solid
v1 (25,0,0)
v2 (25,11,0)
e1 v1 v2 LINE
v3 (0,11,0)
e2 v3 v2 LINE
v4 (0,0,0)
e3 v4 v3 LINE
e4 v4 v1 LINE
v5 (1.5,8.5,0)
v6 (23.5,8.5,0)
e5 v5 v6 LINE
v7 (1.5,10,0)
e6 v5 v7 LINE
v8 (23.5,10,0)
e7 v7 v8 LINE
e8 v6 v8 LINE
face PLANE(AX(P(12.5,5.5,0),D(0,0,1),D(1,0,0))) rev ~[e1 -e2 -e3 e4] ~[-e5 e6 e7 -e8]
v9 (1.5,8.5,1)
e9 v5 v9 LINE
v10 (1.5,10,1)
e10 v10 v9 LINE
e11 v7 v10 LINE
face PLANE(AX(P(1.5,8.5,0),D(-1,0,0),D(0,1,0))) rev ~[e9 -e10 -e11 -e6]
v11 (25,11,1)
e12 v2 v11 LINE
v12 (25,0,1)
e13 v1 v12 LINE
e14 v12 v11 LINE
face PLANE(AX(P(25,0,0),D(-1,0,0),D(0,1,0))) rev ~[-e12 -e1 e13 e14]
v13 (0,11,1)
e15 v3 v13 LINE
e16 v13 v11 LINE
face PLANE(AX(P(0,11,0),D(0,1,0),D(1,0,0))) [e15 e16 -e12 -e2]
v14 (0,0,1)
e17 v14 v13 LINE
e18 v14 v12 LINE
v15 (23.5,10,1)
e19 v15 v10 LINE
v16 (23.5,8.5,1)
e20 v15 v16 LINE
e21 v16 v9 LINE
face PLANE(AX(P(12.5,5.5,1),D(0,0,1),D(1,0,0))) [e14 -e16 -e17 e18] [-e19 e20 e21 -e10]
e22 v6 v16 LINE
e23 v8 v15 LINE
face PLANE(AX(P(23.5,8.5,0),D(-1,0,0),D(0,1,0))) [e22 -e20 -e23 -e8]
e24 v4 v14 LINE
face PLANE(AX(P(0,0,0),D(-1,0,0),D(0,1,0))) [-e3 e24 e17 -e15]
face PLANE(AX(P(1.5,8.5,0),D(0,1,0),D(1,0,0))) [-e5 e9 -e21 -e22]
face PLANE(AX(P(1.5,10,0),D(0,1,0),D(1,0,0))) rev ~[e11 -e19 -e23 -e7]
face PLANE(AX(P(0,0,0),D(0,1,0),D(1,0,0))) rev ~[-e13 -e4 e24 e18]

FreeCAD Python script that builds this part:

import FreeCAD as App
import Part
import Sketcher
Q = App.Units.Quantity

doc = App.newDocument("Part")
params = doc.addObject("Spreadsheet::Sheet", "Params")
for row, (alias, value) in enumerate([
    ("sketch1_width", "22 mm"),
    ("sketch1_height", "1.5 mm"),
    ("pad1_length", "2 mm"),
    ("sketch2_width", "25 mm"),
    ("sketch2_height", "11 mm"),
    ("pad2_length", "1 mm"),
], start=1):
    params.set(f"A{row}", alias)
    params.set(f"B{row}", "=" + value)
    params.setAlias(f"B{row}", alias)

body = doc.addObject("PartDesign::Body", "Body")

# Sketch on XY plane
sketch1 = doc.addObject("Sketcher::SketchObject", "Sketch")
body.addObject(sketch1)
sketch1.AttachmentSupport = (doc.XY_Plane, [""])
sketch1.MapMode = "FlatFace"
sketch1.addGeometry([
    Part.LineSegment(App.Vector(1.5, 10, 0), App.Vector(1.5, 8.5, 0)),
    Part.LineSegment(App.Vector(1.5, 8.5, 0), App.Vector(23.5, 8.5, 0)),
    Part.LineSegment(App.Vector(23.5, 8.5, 0), App.Vector(23.5, 10, 0)),
    Part.LineSegment(App.Vector(23.5, 10, 0), App.Vector(1.5, 10, 0)),
], False)
sketch1.addConstraint([
    Sketcher.Constraint("Coincident", 0, 2, 1, 1),
    Sketcher.Constraint("Coincident", 1, 2, 2, 1),
    Sketcher.Constraint("Coincident", 2, 2, 3, 1),
    Sketcher.Constraint("Coincident", 3, 2, 0, 1),
    Sketcher.Constraint("Vertical", 0),
    Sketcher.Constraint("Horizontal", 1),
    Sketcher.Constraint("Vertical", 2),
    Sketcher.Constraint("Horizontal", 3),
    Sketcher.Constraint("DistanceX", 1, 1, 1, 2, Q("22 mm")),
    Sketcher.Constraint("DistanceY", 0, 2, 0, 1, Q("1.5 mm")),
    Sketcher.Constraint("DistanceY", -1, 1, 2, 2, Q("10 mm")),
    Sketcher.Constraint("DistanceX", -1, 1, 0, 2, Q("1.5 mm")),
])
sketch1.setExpression("Constraints[8]", "Params.sketch1_width")
sketch1.setExpression("Constraints[9]", "Params.sketch1_height")
pad1 = doc.addObject("PartDesign::Pad", "Pad")
body.addObject(pad1)
pad1.Profile = sketch1
pad1.setExpression("Length", "Params.pad1_length")
body2 = doc.addObject("PartDesign::Body", "Body001")

# Sketch on XY plane
sketch2 = doc.addObject("Sketcher::SketchObject", "Sketch001")
body2.addObject(sketch2)
sketch2.AttachmentSupport = (doc.getObject("XY_Plane001"), [""])
sketch2.MapMode = "FlatFace"
sketch2.addGeometry([
    Part.LineSegment(App.Vector(0, 11, 0), App.Vector(0, 0, 0)),
    Part.LineSegment(App.Vector(0, 0, 0), App.Vector(25, 0, 0)),
    Part.LineSegment(App.Vector(25, 0, 0), App.Vector(25, 11, 0)),
    Part.LineSegment(App.Vector(25, 11, 0), App.Vector(0, 11, 0)),
], False)
sketch2.addConstraint([
    Sketcher.Constraint("Coincident", 0, 2, 1, 1),
    Sketcher.Constraint("Coincident", 1, 2, 2, 1),
    Sketcher.Constraint("Coincident", 2, 2, 3, 1),
    Sketcher.Constraint("Coincident", 3, 2, 0, 1),
    Sketcher.Constraint("Vertical", 0),
    Sketcher.Constraint("Horizontal", 1),
    Sketcher.Constraint("Vertical", 2),
    Sketcher.Constraint("Horizontal", 3),
    Sketcher.Constraint("Coincident", 0, 2, -1, 1),
    Sketcher.Constraint("DistanceX", 1, 1, 1, 2, Q("25 mm")),
    Sketcher.Constraint("DistanceY", 0, 2, 0, 1, Q("11 mm")),
])
sketch2.setExpression("Constraints[9]", "Params.sketch2_width")
sketch2.setExpression("Constraints[10]", "Params.sketch2_height")
pad2 = doc.addObject("PartDesign::Pad", "Pad001")
body2.addObject(pad2)
pad2.Profile = sketch2
pad2.setExpression("Length", "Params.pad2_length")
doc.recompute()

boolean = doc.addObject("PartDesign::Boolean", "Boolean")
body2.addObject(boolean)
boolean.Type = "Cut"
boolean.addObjects([body])

doc.recompute()
